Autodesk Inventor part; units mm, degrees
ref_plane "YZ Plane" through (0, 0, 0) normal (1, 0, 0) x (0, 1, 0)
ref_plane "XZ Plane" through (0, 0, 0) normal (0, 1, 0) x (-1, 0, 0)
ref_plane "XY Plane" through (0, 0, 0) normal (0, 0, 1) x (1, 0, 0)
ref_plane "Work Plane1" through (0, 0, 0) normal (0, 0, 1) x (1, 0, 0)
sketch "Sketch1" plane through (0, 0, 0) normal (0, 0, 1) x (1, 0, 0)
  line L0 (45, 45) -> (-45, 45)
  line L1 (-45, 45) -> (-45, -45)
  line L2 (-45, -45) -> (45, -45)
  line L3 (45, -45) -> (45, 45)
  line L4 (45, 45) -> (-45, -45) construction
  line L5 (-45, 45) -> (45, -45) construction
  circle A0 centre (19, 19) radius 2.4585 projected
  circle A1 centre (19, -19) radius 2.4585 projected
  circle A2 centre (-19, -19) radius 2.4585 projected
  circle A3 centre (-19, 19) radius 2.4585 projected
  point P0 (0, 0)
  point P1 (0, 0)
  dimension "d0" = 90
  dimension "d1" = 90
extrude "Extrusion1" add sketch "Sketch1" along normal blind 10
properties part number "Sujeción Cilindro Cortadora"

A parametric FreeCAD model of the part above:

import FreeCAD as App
import Part
import Sketcher
from FreeCAD import Vector


def add_polygon(sketch, points):
    """Adds a closed chain of lines whose ends are joined by coincident constraints."""
    first, n = sketch.GeometryCount, len(points)
    for a, b in zip(points, points[1:] + points[:1]):
        sketch.addGeometry(Part.LineSegment(App.Vector(*a, 0), App.Vector(*b, 0)), False)
    for i in range(n):
        sketch.addConstraint(Sketcher.Constraint("Coincident", first + i, 2, first + (i + 1) % n, 1))

doc = App.newDocument("Part")
body = doc.addObject("PartDesign::Body", "Body")

# Sketch on XY plane
sketch1 = body.newObject("Sketcher::SketchObject", "Sketch")
sketch1.AttachmentSupport = (doc.getObject("XY_Plane"), [""])
sketch1.MapMode = "FlatFace"
add_polygon(sketch1, [(45, -45), (45, 45), (-45, 45), (-45, -45)])  # lines 0-3
sketch1.addGeometry(Part.Circle(Vector(-19, -19, 0), Vector(0, 0, 1), 2.5), False)  # 4
sketch1.addGeometry(Part.Circle(Vector(19, -19, 0), Vector(0, 0, 1), 2.5), False)  # 5
sketch1.addGeometry(Part.Circle(Vector(-19, 19, 0), Vector(0, 0, 1), 2.5), False)  # 6
sketch1.addGeometry(Part.Circle(Vector(19, 19, 0), Vector(0, 0, 1), 2.5), False)  # 7
sketch1.addConstraint([
    Sketcher.Constraint("Vertical", 0),
    Sketcher.Constraint("Horizontal", 1),
    Sketcher.Constraint("Vertical", 2),
    Sketcher.Constraint("Horizontal", 3),
    Sketcher.Constraint("Equal", 4, 5),
    Sketcher.Constraint("Equal", 5, 6),
    Sketcher.Constraint("Equal", 6, 7),
    Sketcher.Constraint("Symmetric", 5, 3, 6, 3, -1, 1),
    Sketcher.Constraint("Symmetric", 4, 3, 7, 3, -1, 1),
    Sketcher.Constraint("Symmetric", 0, 2, 2, 2, -1, 1),
    Sketcher.Constraint("Symmetric", 4, 3, 5, 3, -2),
    Sketcher.Constraint("Equal", 3, 0),
    Sketcher.Constraint("DistanceX", 1, 2, 1, 1, 90.0),
    Sketcher.Constraint("Diameter", 4, 4.917),
    Sketcher.Constraint("DistanceX", 4, 3, -1, 1, 19.0),
    Sketcher.Constraint("DistanceY", 4, 3, -1, 1, 19.0),
])
pad1 = body.newObject("PartDesign::Pad", "Pad")
pad1.Profile = sketch1
pad1.Length = 10

doc.recompute()
